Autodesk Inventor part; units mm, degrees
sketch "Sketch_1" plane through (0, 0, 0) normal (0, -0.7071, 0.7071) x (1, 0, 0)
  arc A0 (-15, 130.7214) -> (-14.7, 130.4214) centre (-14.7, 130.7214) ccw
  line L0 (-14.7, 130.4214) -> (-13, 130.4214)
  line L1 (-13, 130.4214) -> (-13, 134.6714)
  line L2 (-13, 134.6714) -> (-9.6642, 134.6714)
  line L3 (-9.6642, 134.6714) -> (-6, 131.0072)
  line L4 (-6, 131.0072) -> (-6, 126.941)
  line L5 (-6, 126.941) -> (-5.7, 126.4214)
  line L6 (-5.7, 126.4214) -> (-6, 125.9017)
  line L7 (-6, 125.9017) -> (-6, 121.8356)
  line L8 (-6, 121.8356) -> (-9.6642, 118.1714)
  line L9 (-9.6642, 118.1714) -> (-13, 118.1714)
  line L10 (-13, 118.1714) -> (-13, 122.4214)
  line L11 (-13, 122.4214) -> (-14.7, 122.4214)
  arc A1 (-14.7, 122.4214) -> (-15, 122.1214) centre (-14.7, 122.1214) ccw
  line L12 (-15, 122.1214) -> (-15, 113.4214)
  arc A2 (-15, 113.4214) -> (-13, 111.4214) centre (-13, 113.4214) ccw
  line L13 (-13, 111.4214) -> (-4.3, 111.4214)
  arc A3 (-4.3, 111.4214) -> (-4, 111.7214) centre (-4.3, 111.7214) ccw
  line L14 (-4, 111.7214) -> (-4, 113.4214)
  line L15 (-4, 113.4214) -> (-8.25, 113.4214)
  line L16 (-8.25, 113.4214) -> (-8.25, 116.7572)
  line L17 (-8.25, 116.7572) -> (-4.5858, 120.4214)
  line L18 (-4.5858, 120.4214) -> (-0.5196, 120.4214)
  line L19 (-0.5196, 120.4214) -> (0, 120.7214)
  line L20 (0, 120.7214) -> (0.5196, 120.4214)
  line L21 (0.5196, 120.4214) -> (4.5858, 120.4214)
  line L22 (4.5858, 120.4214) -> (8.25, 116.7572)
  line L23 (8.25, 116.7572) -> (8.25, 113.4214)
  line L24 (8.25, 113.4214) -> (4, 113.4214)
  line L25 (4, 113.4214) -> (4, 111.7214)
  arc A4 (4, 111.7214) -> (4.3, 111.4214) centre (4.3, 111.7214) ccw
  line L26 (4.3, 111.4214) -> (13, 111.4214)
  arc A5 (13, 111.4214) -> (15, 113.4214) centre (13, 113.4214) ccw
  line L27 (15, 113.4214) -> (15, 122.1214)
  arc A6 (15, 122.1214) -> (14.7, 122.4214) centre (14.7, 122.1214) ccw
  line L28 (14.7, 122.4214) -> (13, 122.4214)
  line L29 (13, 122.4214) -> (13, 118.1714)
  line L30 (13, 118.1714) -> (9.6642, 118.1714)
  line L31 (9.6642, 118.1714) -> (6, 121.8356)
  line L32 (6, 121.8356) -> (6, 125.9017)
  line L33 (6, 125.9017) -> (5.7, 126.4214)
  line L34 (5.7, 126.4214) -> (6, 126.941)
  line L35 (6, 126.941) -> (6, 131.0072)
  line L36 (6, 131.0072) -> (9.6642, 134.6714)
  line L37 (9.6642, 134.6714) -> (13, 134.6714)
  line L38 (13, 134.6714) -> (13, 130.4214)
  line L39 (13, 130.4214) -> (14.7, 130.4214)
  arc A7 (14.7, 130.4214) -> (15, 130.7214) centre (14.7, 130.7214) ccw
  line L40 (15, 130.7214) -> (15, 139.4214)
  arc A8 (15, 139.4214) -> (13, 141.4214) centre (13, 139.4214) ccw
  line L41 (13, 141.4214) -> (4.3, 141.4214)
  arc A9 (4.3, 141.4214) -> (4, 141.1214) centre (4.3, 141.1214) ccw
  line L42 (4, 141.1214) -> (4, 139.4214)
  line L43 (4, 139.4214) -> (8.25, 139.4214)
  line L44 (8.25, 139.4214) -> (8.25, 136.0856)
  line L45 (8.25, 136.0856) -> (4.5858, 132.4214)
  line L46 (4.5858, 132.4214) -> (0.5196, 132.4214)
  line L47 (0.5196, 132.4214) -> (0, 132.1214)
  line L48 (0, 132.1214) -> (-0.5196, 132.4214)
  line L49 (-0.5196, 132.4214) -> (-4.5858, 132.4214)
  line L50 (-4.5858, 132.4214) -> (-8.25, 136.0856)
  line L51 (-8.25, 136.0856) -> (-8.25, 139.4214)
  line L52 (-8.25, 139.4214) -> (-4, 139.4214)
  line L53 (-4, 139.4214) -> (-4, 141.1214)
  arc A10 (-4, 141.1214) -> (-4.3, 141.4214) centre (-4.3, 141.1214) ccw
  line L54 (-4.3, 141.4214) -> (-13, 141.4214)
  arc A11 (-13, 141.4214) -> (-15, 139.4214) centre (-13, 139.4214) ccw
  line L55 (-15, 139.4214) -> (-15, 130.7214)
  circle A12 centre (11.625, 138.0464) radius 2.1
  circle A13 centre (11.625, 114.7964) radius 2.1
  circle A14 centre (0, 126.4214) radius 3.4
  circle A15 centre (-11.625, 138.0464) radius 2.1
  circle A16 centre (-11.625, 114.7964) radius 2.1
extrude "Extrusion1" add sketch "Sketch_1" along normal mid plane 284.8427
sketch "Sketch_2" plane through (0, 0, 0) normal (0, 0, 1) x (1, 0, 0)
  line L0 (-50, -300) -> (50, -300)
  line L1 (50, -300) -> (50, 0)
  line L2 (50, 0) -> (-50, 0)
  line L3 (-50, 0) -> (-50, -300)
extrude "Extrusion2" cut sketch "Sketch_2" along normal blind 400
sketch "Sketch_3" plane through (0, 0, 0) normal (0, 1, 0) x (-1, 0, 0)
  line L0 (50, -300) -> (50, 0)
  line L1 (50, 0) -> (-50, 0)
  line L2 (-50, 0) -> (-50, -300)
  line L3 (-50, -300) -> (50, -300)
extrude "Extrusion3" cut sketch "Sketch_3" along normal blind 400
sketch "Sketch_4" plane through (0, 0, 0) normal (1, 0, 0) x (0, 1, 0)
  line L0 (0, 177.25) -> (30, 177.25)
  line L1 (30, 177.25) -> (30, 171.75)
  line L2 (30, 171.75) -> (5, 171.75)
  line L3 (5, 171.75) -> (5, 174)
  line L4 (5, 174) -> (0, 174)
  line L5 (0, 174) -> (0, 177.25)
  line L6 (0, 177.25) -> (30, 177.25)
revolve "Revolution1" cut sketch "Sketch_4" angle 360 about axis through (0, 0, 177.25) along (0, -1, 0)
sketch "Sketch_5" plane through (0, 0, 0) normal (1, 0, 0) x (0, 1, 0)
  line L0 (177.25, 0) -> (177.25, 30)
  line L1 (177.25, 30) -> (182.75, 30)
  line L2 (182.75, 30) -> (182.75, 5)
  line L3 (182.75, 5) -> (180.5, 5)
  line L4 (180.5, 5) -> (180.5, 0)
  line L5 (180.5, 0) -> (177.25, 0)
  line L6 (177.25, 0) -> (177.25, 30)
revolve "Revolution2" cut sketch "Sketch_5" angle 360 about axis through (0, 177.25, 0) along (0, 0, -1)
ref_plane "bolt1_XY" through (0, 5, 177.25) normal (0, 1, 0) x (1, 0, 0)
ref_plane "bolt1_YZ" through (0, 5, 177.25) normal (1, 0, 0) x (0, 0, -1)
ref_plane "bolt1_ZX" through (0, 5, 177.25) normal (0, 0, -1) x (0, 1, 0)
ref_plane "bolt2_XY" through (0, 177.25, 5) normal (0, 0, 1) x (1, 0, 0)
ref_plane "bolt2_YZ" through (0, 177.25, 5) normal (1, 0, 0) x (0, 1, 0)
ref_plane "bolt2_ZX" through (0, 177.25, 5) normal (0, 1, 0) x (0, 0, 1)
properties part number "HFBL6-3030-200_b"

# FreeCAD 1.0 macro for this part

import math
import FreeCAD as App
import Part
import Sketcher
from FreeCAD import Vector
Q = App.Units.Quantity


def add_polygon(sketch, points):
    """Adds a closed chain of lines whose ends are joined by coincident constraints."""
    first, n = sketch.GeometryCount, len(points)
    for a, b in zip(points, points[1:] + points[:1]):
        sketch.addGeometry(Part.LineSegment(App.Vector(*a, 0), App.Vector(*b, 0)), False)
    for i in range(n):
        sketch.addConstraint(Sketcher.Constraint("Coincident", first + i, 2, first + (i + 1) % n, 1))

doc = App.newDocument("Part")
body = doc.addObject("PartDesign::Body", "Body")

# Sketch on an angled plane
sketch1 = body.newObject("Sketcher::SketchObject", "Sketch")
sketch1.Placement = App.Placement(Vector(0, 0, 0), App.Rotation(Vector(1, 0, 0), Vector(0, 0.707106781, 0.707106781), Vector(0, -0.707106781, 0.707106781), "ZXY"))
sketch1.addGeometry([
    Part.LineSegment(Vector(-15, 139.42, 0), Vector(-15, 130.72, 0)),  # 0
    Part.ArcOfCircle(Part.Circle(Vector(-14.7, 130.72, 0), Vector(0, 0, 1), 0.3), math.radians(180), math.radians(270)),  # 1
    Part.LineSegment(Vector(-14.7, 130.42, 0), Vector(-13, 130.42, 0)),  # 2
    Part.LineSegment(Vector(-13, 130.42, 0), Vector(-13, 134.67, 0)),  # 3
    Part.LineSegment(Vector(-13, 134.67, 0), Vector(-9.66, 134.67, 0)),  # 4
    Part.LineSegment(Vector(-9.66, 134.67, 0), Vector(-6, 131.01, 0)),  # 5
    Part.LineSegment(Vector(-6, 131.01, 0), Vector(-6, 126.94, 0)),  # 6
    Part.LineSegment(Vector(-6, 126.94, 0), Vector(-5.7, 126.42, 0)),  # 7
    Part.LineSegment(Vector(-5.7, 126.42, 0), Vector(-6, 125.9, 0)),  # 8
    Part.LineSegment(Vector(-6, 125.9, 0), Vector(-6, 121.84, 0)),  # 9
    Part.LineSegment(Vector(-6, 121.84, 0), Vector(-9.66, 118.17, 0)),  # 10
    Part.LineSegment(Vector(-9.66, 118.17, 0), Vector(-13, 118.17, 0)),  # 11
    Part.LineSegment(Vector(-13, 118.17, 0), Vector(-13, 122.42, 0)),  # 12
    Part.LineSegment(Vector(-13, 122.42, 0), Vector(-14.7, 122.42, 0)),  # 13
    Part.ArcOfCircle(Part.Circle(Vector(-14.7, 122.12, 0), Vector(0, 0, 1), 0.3), math.radians(90), math.radians(180)),  # 14
    Part.LineSegment(Vector(-15, 122.12, 0), Vector(-15, 113.42, 0)),  # 15
    Part.ArcOfCircle(Part.Circle(Vector(-13, 113.42, 0), Vector(0, 0, 1), 2), math.radians(180), math.radians(270)),  # 16
    Part.LineSegment(Vector(-13, 111.42, 0), Vector(-4.3, 111.42, 0)),  # 17
    Part.ArcOfCircle(Part.Circle(Vector(-4.3, 111.72, 0), Vector(0, 0, 1), 0.3), math.radians(-90), math.radians(0)),  # 18
    Part.LineSegment(Vector(-4, 111.72, 0), Vector(-4, 113.42, 0)),  # 19
    Part.LineSegment(Vector(-4, 113.42, 0), Vector(-8.25, 113.42, 0)),  # 20
    Part.LineSegment(Vector(-8.25, 113.42, 0), Vector(-8.25, 116.76, 0)),  # 21
    Part.LineSegment(Vector(-8.25, 116.76, 0), Vector(-4.59, 120.42, 0)),  # 22
    Part.LineSegment(Vector(-4.59, 120.42, 0), Vector(-0.52, 120.42, 0)),  # 23
    Part.LineSegment(Vector(-0.52, 120.42, 0), Vector(0, 120.72, 0)),  # 24
    Part.LineSegment(Vector(0, 120.72, 0), Vector(0.52, 120.42, 0)),  # 25
    Part.LineSegment(Vector(0.52, 120.42, 0), Vector(4.59, 120.42, 0)),  # 26
    Part.LineSegment(Vector(4.59, 120.42, 0), Vector(8.25, 116.76, 0)),  # 27
    Part.LineSegment(Vector(8.25, 116.76, 0), Vector(8.25, 113.42, 0)),  # 28
    Part.LineSegment(Vector(8.25, 113.42, 0), Vector(4, 113.42, 0)),  # 29
    Part.LineSegment(Vector(4, 113.42, 0), Vector(4, 111.72, 0)),  # 30
    Part.ArcOfCircle(Part.Circle(Vector(4.3, 111.72, 0), Vector(0, 0, 1), 0.3), math.radians(180), math.radians(270)),  # 31
    Part.LineSegment(Vector(4.3, 111.42, 0), Vector(13, 111.42, 0)),  # 32
    Part.ArcOfCircle(Part.Circle(Vector(13, 113.42, 0), Vector(0, 0, 1), 2), math.radians(-90), math.radians(0)),  # 33
    Part.LineSegment(Vector(15, 113.42, 0), Vector(15, 122.12, 0)),  # 34
    Part.ArcOfCircle(Part.Circle(Vector(14.7, 122.12, 0), Vector(0, 0, 1), 0.3), math.radians(0), math.radians(90)),  # 35
    Part.LineSegment(Vector(14.7, 122.42, 0), Vector(13, 122.42, 0)),  # 36
    Part.LineSegment(Vector(13, 122.42, 0), Vector(13, 118.17, 0)),  # 37
    Part.LineSegment(Vector(13, 118.17, 0), Vector(9.66, 118.17, 0)),  # 38
    Part.LineSegment(Vector(9.66, 118.17, 0), Vector(6, 121.84, 0)),  # 39
    Part.LineSegment(Vector(6, 121.84, 0), Vector(6, 125.9, 0)),  # 40
    Part.LineSegment(Vector(6, 125.9, 0), Vector(5.7, 126.42, 0)),  # 41
    Part.LineSegment(Vector(5.7, 126.42, 0), Vector(6, 126.94, 0)),  # 42
    Part.LineSegment(Vector(6, 126.94, 0), Vector(6, 131.01, 0)),  # 43
    Part.LineSegment(Vector(6, 131.01, 0), Vector(9.66, 134.67, 0)),  # 44
    Part.LineSegment(Vector(9.66, 134.67, 0), Vector(13, 134.67, 0)),  # 45
    Part.LineSegment(Vector(13, 134.67, 0), Vector(13, 130.42, 0)),  # 46
    Part.LineSegment(Vector(13, 130.42, 0), Vector(14.7, 130.42, 0)),  # 47
    Part.ArcOfCircle(Part.Circle(Vector(14.7, 130.72, 0), Vector(0, 0, 1), 0.3), math.radians(-90), math.radians(0)),  # 48
    Part.LineSegment(Vector(15, 130.72, 0), Vector(15, 139.42, 0)),  # 49
    Part.ArcOfCircle(Part.Circle(Vector(13, 139.42, 0), Vector(0, 0, 1), 2), math.radians(0), math.radians(90)),  # 50
    Part.LineSegment(Vector(13, 141.42, 0), Vector(4.3, 141.42, 0)),  # 51
    Part.ArcOfCircle(Part.Circle(Vector(4.3, 141.12, 0), Vector(0, 0, 1), 0.3), math.radians(90), math.radians(180)),  # 52
    Part.LineSegment(Vector(4, 141.12, 0), Vector(4, 139.42, 0)),  # 53
    Part.LineSegment(Vector(4, 139.42, 0), Vector(8.25, 139.42, 0)),  # 54
    Part.LineSegment(Vector(8.25, 139.42, 0), Vector(8.25, 136.09, 0)),  # 55
    Part.LineSegment(Vector(8.25, 136.09, 0), Vector(4.59, 132.42, 0)),  # 56
    Part.LineSegment(Vector(4.59, 132.42, 0), Vector(0.52, 132.42, 0)),  # 57
    Part.LineSegment(Vector(0.52, 132.42, 0), Vector(0, 132.12, 0)),  # 58
    Part.LineSegment(Vector(0, 132.12, 0), Vector(-0.52, 132.42, 0)),  # 59
    Part.LineSegment(Vector(-0.52, 132.42, 0), Vector(-4.59, 132.42, 0)),  # 60
    Part.LineSegment(Vector(-4.59, 132.42, 0), Vector(-8.25, 136.09, 0)),  # 61
    Part.LineSegment(Vector(-8.25, 136.09, 0), Vector(-8.25, 139.42, 0)),  # 62
    Part.LineSegment(Vector(-8.25, 139.42, 0), Vector(-4, 139.42, 0)),  # 63
    Part.LineSegment(Vector(-4, 139.42, 0), Vector(-4, 141.12, 0)),  # 64
    Part.ArcOfCircle(Part.Circle(Vector(-4.3, 141.12, 0), Vector(0, 0, 1), 0.3), math.radians(0), math.radians(90)),  # 65
    Part.LineSegment(Vector(-4.3, 141.42, 0), Vector(-13, 141.42, 0)),  # 66
    Part.ArcOfCircle(Part.Circle(Vector(-13, 139.42, 0), Vector(0, 0, 1), 2), math.radians(90), math.radians(180)),  # 67
    Part.Circle(Vector(-11.62, 114.8, 0), Vector(0, 0, 1), 2.1),  # 68
    Part.Circle(Vector(11.62, 114.8, 0), Vector(0, 0, 1), 2.1),  # 69
    Part.Circle(Vector(-11.62, 138.05, 0), Vector(0, 0, 1), 2.1),  # 70
    Part.Circle(Vector(0, 126.42, 0), Vector(0, 0, 1), 3.4),  # 71
    Part.Circle(Vector(11.62, 138.05, 0), Vector(0, 0, 1), 2.1),  # 72
], False)
sketch1.addConstraint([
    Sketcher.Constraint("Tangent", 0, 2, 1, 1),
    Sketcher.Constraint("Tangent", 1, 2, 2, 1),
    Sketcher.Constraint("Coincident", 2, 2, 3, 1),
    Sketcher.Constraint("Coincident", 3, 2, 4, 1),
    Sketcher.Constraint("Coincident", 4, 2, 5, 1),
    Sketcher.Constraint("Coincident", 5, 2, 6, 1),
    Sketcher.Constraint("Coincident", 6, 2, 7, 1),
    Sketcher.Constraint("Coincident", 7, 2, 8, 1),
    Sketcher.Constraint("Coincident", 8, 2, 9, 1),
    Sketcher.Constraint("Coincident", 9, 2, 10, 1),
    Sketcher.Constraint("Coincident", 10, 2, 11, 1),
    Sketcher.Constraint("Coincident", 11, 2, 12, 1),
    Sketcher.Constraint("Coincident", 12, 2, 13, 1),
    Sketcher.Constraint("Tangent", 13, 2, 14, 1),
    Sketcher.Constraint("Tangent", 14, 2, 15, 1),
    Sketcher.Constraint("Tangent", 15, 2, 16, 1),
    Sketcher.Constraint("Tangent", 16, 2, 17, 1),
    Sketcher.Constraint("Tangent", 17, 2, 18, 1),
    Sketcher.Constraint("Tangent", 18, 2, 19, 1),
    Sketcher.Constraint("Coincident", 19, 2, 20, 1),
    Sketcher.Constraint("Coincident", 20, 2, 21, 1),
    Sketcher.Constraint("Coincident", 21, 2, 22, 1),
    Sketcher.Constraint("Coincident", 22, 2, 23, 1),
    Sketcher.Constraint("Coincident", 23, 2, 24, 1),
    Sketcher.Constraint("Coincident", 24, 2, 25, 1),
    Sketcher.Constraint("Coincident", 25, 2, 26, 1),
    Sketcher.Constraint("Coincident", 26, 2, 27, 1),
    Sketcher.Constraint("Coincident", 27, 2, 28, 1),
    Sketcher.Constraint("Coincident", 28, 2, 29, 1),
    Sketcher.Constraint("Coincident", 29, 2, 30, 1),
    Sketcher.Constraint("Tangent", 30, 2, 31, 1),
    Sketcher.Constraint("Tangent", 31, 2, 32, 1),
    Sketcher.Constraint("Tangent", 32, 2, 33, 1),
    Sketcher.Constraint("Tangent", 33, 2, 34, 1),
    Sketcher.Constraint("Tangent", 34, 2, 35, 1),
    Sketcher.Constraint("Tangent", 35, 2, 36, 1),
    Sketcher.Constraint("Coincident", 36, 2, 37, 1),
    Sketcher.Constraint("Coincident", 37, 2, 38, 1),
    Sketcher.Constraint("Coincident", 38, 2, 39, 1),
    Sketcher.Constraint("Coincident", 39, 2, 40, 1),
    Sketcher.Constraint("Coincident", 40, 2, 41, 1),
    Sketcher.Constraint("Coincident", 41, 2, 42, 1),
    Sketcher.Constraint("Coincident", 42, 2, 43, 1),
    Sketcher.Constraint("Coincident", 43, 2, 44, 1),
    Sketcher.Constraint("Coincident", 44, 2, 45, 1),
    Sketcher.Constraint("Coincident", 45, 2, 46, 1),
    Sketcher.Constraint("Coincident", 46, 2, 47, 1),
    Sketcher.Constraint("Tangent", 47, 2, 48, 1),
    Sketcher.Constraint("Tangent", 48, 2, 49, 1),
    Sketcher.Constraint("Tangent", 49, 2, 50, 1),
    Sketcher.Constraint("Tangent", 50, 2, 51, 1),
    Sketcher.Constraint("Tangent", 51, 2, 52, 1),
    Sketcher.Constraint("Tangent", 52, 2, 53, 1),
    Sketcher.Constraint("Coincident", 53, 2, 54, 1),
    Sketcher.Constraint("Coincident", 54, 2, 55, 1),
    Sketcher.Constraint("Coincident", 55, 2, 56, 1),
    Sketcher.Constraint("Coincident", 56, 2, 57, 1),
    Sketcher.Constraint("Coincident", 57, 2, 58, 1),
    Sketcher.Constraint("Coincident", 58, 2, 59, 1),
    Sketcher.Constraint("Coincident", 59, 2, 60, 1),
    Sketcher.Constraint("Coincident", 60, 2, 61, 1),
    Sketcher.Constraint("Coincident", 61, 2, 62, 1),
    Sketcher.Constraint("Coincident", 62, 2, 63, 1),
    Sketcher.Constraint("Coincident", 63, 2, 64, 1),
    Sketcher.Constraint("Tangent", 64, 2, 65, 1),
    Sketcher.Constraint("Tangent", 65, 2, 66, 1),
    Sketcher.Constraint("Tangent", 66, 2, 67, 1),
    Sketcher.Constraint("Tangent", 67, 2, 0, 1),
    Sketcher.Constraint("Vertical", 0),
    Sketcher.Constraint("Horizontal", 2),
    Sketcher.Constraint("Vertical", 3),
    Sketcher.Constraint("Horizontal", 4),
    Sketcher.Constraint("Vertical", 6),
    Sketcher.Constraint("Vertical", 9),
    Sketcher.Constraint("Horizontal", 11),
    Sketcher.Constraint("Vertical", 12),
    Sketcher.Constraint("Horizontal", 13),
    Sketcher.Constraint("Vertical", 15),
    Sketcher.Constraint("Horizontal", 17),
    Sketcher.Constraint("Vertical", 19),
    Sketcher.Constraint("Horizontal", 20),
    Sketcher.Constraint("Vertical", 21),
    Sketcher.Constraint("Horizontal", 23),
    Sketcher.Constraint("Horizontal", 26),
    Sketcher.Constraint("Vertical", 28),
    Sketcher.Constraint("Horizontal", 29),
    Sketcher.Constraint("Vertical", 30),
    Sketcher.Constraint("Horizontal", 32),
    Sketcher.Constraint("Vertical", 34),
    Sketcher.Constraint("Horizontal", 36),
    Sketcher.Constraint("Vertical", 37),
    Sketcher.Constraint("Horizontal", 38),
    Sketcher.Constraint("Vertical", 40),
    Sketcher.Constraint("Vertical", 43),
    Sketcher.Constraint("Horizontal", 45),
    Sketcher.Constraint("Vertical", 46),
    Sketcher.Constraint("Horizontal", 47),
    Sketcher.Constraint("Vertical", 49),
    Sketcher.Constraint("Horizontal", 51),
    Sketcher.Constraint("Vertical", 53),
    Sketcher.Constraint("Horizontal", 54),
    Sketcher.Constraint("Vertical", 55),
    Sketcher.Constraint("Horizontal", 57),
    Sketcher.Constraint("Horizontal", 60),
    Sketcher.Constraint("Vertical", 62),
    Sketcher.Constraint("Horizontal", 63),
    Sketcher.Constraint("Vertical", 64),
    Sketcher.Constraint("Horizontal", 66),
    Sketcher.Constraint("Equal", 1, 14),
    Sketcher.Constraint("Equal", 14, 18),
    Sketcher.Constraint("Equal", 18, 31),
    Sketcher.Constraint("Equal", 16, 33),
    Sketcher.Constraint("Equal", 31, 35),
    Sketcher.Constraint("Equal", 35, 48),
    Sketcher.Constraint("Equal", 33, 50),
    Sketcher.Constraint("Equal", 48, 52),
    Sketcher.Constraint("Equal", 52, 65),
    Sketcher.Constraint("Equal", 50, 67),
    Sketcher.Constraint("Equal", 68, 69),
    Sketcher.Constraint("Equal", 69, 70),
    Sketcher.Constraint("Equal", 70, 72),
    Sketcher.Constraint("Symmetric", 18, 3, 31, 3, -2),
    Sketcher.Constraint("Symmetric", 14, 3, 35, 3, -2),
    Sketcher.Constraint("Symmetric", 1, 3, 48, 3, -2),
    Sketcher.Constraint("Symmetric", 52, 3, 65, 3, -2),
    Sketcher.Constraint("Symmetric", 68, 3, 69, 3, -2),
    Sketcher.Constraint("Symmetric", 70, 3, 72, 3, -2),
    Sketcher.Constraint("Symmetric", 23, 2, 25, 2, -2),
    Sketcher.Constraint("Symmetric", 21, 2, 27, 2, -2),
    Sketcher.Constraint("Symmetric", 11, 2, 37, 2, -2),
    Sketcher.Constraint("Symmetric", 9, 2, 39, 2, -2),
    Sketcher.Constraint("Symmetric", 7, 2, 41, 2, -2),
    Sketcher.Constraint("Symmetric", 6, 2, 42, 2, -2),
    Sketcher.Constraint("Symmetric", 4, 2, 44, 2, -2),
    Sketcher.Constraint("Symmetric", 57, 2, 59, 2, -2),
    Sketcher.Constraint("Symmetric", 55, 2, 61, 2, -2),
    Sketcher.Constraint("PointOnObject", 71, 3, -2),
    Sketcher.Constraint("PointOnObject", 24, 2, -2),
    Sketcher.Constraint("PointOnObject", 58, 2, -2),
    Sketcher.Constraint("Perpendicular", 5, 10),
    Sketcher.Constraint("Parallel", 10, 22),
    Sketcher.Constraint("Perpendicular", 7, 24),
    Sketcher.Constraint("Perpendicular", 8, 25),
    Sketcher.Constraint("Perpendicular", 22, 27),
    Sketcher.Constraint("Parallel", 27, 39),
    Sketcher.Constraint("Perpendicular", 24, 41),
    Sketcher.Constraint("Perpendicular", 39, 44),
    Sketcher.Constraint("Parallel", 44, 56),
    Sketcher.Constraint("Perpendicular", 41, 58),
    Sketcher.Constraint("Perpendicular", 56, 61),
    Sketcher.Constraint("Horizontal", 71, 3, 7, 2),
    Sketcher.Constraint("Horizontal", 15, 2, 19, 2),
    Sketcher.Constraint("Horizontal", 20, 2, 28, 2),
    Sketcher.Constraint("Horizontal", 5, 2, 43, 2),
    Sketcher.Constraint("Horizontal", 49, 2, 53, 2),
    Sketcher.Constraint("Horizontal", 54, 2, 62, 2),
    Sketcher.Constraint("Vertical", 1, 3, 14, 3),
    Sketcher.Constraint("Vertical", 31, 3, 52, 3),
    Sketcher.Constraint("Vertical", 68, 3, 70, 3),
    Sketcher.Constraint("Vertical", 67, 3, 2, 2),
    Sketcher.Constraint("Vertical", 6, 2, 8, 2),
    Sketcher.Constraint("Vertical", 4, 2, 10, 2),
    Sketcher.Constraint("Vertical", 3, 2, 11, 2),
    Sketcher.Constraint("Vertical", 37, 2, 45, 2),
    Sketcher.Constraint("Vertical", 28, 2, 54, 2),
    Sketcher.Constraint("Vertical", 26, 2, 56, 2),
    Sketcher.Constraint("Vertical", 25, 2, 57, 2),
    Sketcher.Constraint("Equal", 66, 0),
    Sketcher.Constraint("Equal", 63, 3),
    Sketcher.Constraint("Equal", 60, 6),
    Sketcher.Constraint("Equal", 6, 9),
    Sketcher.Constraint("Equal", 3, 12),
    Sketcher.Constraint("Equal", 0, 15),
    Sketcher.Constraint("Equal", 45, 21),
    Sketcher.Constraint("Equal", 28, 55),
    Sketcher.Constraint("Equal", 10, 22),
    Sketcher.Constraint("Equal", 8, 24),
    Sketcher.Constraint("Radius", 16, 2.0),
    Sketcher.Constraint("Diameter", 68, 4.2),
    Sketcher.Constraint("Diameter", 71, 6.8),
    Sketcher.Constraint("Radius", 1, 0.3),
    Sketcher.Constraint("Angle", 7, Q("-59.9993 deg")),
    Sketcher.Constraint("DistanceX", 17, 1, 17, 2, 8.7),
    Sketcher.Constraint("DistanceX", 16, 3, -1, 1, 13.0),
    Sketcher.Constraint("DistanceX", 5, 2, -1, 1, 6.0),
    Sketcher.Constraint("Distance", 7, 0.6),
    Sketcher.Constraint("DistanceX", 20, 2, 20, 1, 4.25),
    Sketcher.Constraint("DistanceY", 9, 2, 9, 1, 4.066),
    Sketcher.Constraint("DistanceX", 68, 3, -1, 1, 11.625),
    Sketcher.Constraint("DistanceY", -1, 1, 6, 2, 126.941),
    Sketcher.Constraint("DistanceY", -1, 1, 68, 3, 114.7964),
    Sketcher.Constraint("DistanceY", -1, 1, 70, 3, 138.0464),
])
pad1 = body.newObject("PartDesign::Pad", "Pad")
pad1.Profile = sketch1
pad1.Length = 284.8427
pad1.Midplane = True

# Sketch on XY plane
sketch2 = body.newObject("Sketcher::SketchObject", "Sketch001")
sketch2.AttachmentSupport = (doc.getObject("XY_Plane"), [""])
sketch2.MapMode = "FlatFace"
add_polygon(sketch2, [(-50, 0), (-50, -300), (50, -300), (50, 0)])  # lines 0-3
sketch2.addConstraint([
    Sketcher.Constraint("Vertical", 0),
    Sketcher.Constraint("Horizontal", 1),
    Sketcher.Constraint("Vertical", 2),
    Sketcher.Constraint("Horizontal", 3),
    Sketcher.Constraint("Symmetric", 2, 2, 3, 2, -1, 1),
    Sketcher.Constraint("DistanceX", 1, 1, 1, 2, 100.0),
    Sketcher.Constraint("DistanceY", 0, 2, 0, 1, 300.0),
])
pocket1 = body.newObject("PartDesign::Pocket", "Pocket")
pocket1.Profile = sketch2
pocket1.Length = 400
pocket1.Reversed = True

# Sketch on XZ plane
sketch3 = body.newObject("Sketcher::SketchObject", "Sketch002")
sketch3.AttachmentSupport = (doc.getObject("XZ_Plane"), [""])
sketch3.MapMode = "FlatFace"
add_polygon(sketch3, [(50, -300), (-50, -300), (-50, 0), (50, 0)])  # lines 0-3
sketch3.addConstraint([
    Sketcher.Constraint("Horizontal", 0),
    Sketcher.Constraint("Vertical", 1),
    Sketcher.Constraint("Horizontal", 2),
    Sketcher.Constraint("Vertical", 3),
    Sketcher.Constraint("Symmetric", 1, 2, 2, 2, -1, 1),
    Sketcher.Constraint("DistanceX", 0, 2, 0, 1, 100.0),
    Sketcher.Constraint("DistanceY", 1, 1, 1, 2, 300.0),
])
pocket2 = body.newObject("PartDesign::Pocket", "Pocket001")
pocket2.Profile = sketch3
pocket2.Length = 400

# Sketch on YZ plane
sketch4 = body.newObject("Sketcher::SketchObject", "Sketch003")
sketch4.AttachmentSupport = (doc.getObject("YZ_Plane"), [""])
sketch4.MapMode = "FlatFace"
add_polygon(sketch4, [(30, 177.2), (0, 177.2), (0, 174), (5, 174), (5, 171.8), (30, 171.8)])  # lines 0-5
sketch4.addGeometry(Part.LineSegment(Vector(30, 177.2, 0), Vector(0, 177.2, 0)), True)  # axis
sketch4.addConstraint([
    Sketcher.Constraint("Horizontal", 0),
    Sketcher.Constraint("Vertical", 1),
    Sketcher.Constraint("Horizontal", 2),
    Sketcher.Constraint("Vertical", 3),
    Sketcher.Constraint("Horizontal", 4),
    Sketcher.Constraint("Vertical", 5),
    Sketcher.Constraint("Horizontal", 6),
    Sketcher.Constraint("Coincident", 6, 1, 5, 2),
    Sketcher.Constraint("PointOnObject", 0, 2, -2),
    Sketcher.Constraint("PointOnObject", 6, 2, -2),
    Sketcher.Constraint("DistanceX", 0, 2, 0, 1, 30.0),
    Sketcher.Constraint("DistanceX", 2, 1, 2, 2, 5.0),
    Sketcher.Constraint("DistanceY", 5, 1, 5, 2, 5.5),
    Sketcher.Constraint("DistanceY", -1, 1, 1, 2, 174.0),
    Sketcher.Constraint("DistanceY", 1, 2, 1, 1, 3.25),
])
groove = body.newObject("PartDesign::Groove", "Groove")
groove.Profile = sketch4
groove.ReferenceAxis = (sketch4, ["Axis0"])
groove.Angle = 360

# Sketch on YZ plane
sketch5 = body.newObject("Sketcher::SketchObject", "Sketch004")
sketch5.AttachmentSupport = (doc.getObject("YZ_Plane"), [""])
sketch5.MapMode = "FlatFace"
add_polygon(sketch5, [(177.2, 30), (177.2, 0), (180.5, 0), (180.5, 5), (182.8, 5), (182.8, 30)])  # lines 0-5
sketch5.addGeometry(Part.LineSegment(Vector(177.2, 30, 0), Vector(177.2, 0, 0)), True)  # axis
sketch5.addConstraint([
    Sketcher.Constraint("Vertical", 0),
    Sketcher.Constraint("Horizontal", 1),
    Sketcher.Constraint("Vertical", 2),
    Sketcher.Constraint("Horizontal", 3),
    Sketcher.Constraint("Vertical", 4),
    Sketcher.Constraint("Horizontal", 5),
    Sketcher.Constraint("Vertical", 6),
    Sketcher.Constraint("Coincident", 6, 1, 5, 2),
    Sketcher.Constraint("PointOnObject", 0, 2, -1),
    Sketcher.Constraint("PointOnObject", 6, 2, -1),
    Sketcher.Constraint("DistanceY", 0, 2, 0, 1, 30.0),
    Sketcher.Constraint("DistanceY", 2, 1, 2, 2, 5.0),
    Sketcher.Constraint("DistanceX", 5, 2, 5, 1, 5.5),
    Sketcher.Constraint("DistanceX", 1, 1, 1, 2, 3.25),
    Sketcher.Constraint("DistanceX", -1, 1, 1, 2, 180.5),
])
groove2 = body.newObject("PartDesign::Groove", "Groove001")
groove2.Profile = sketch5
groove2.ReferenceAxis = (sketch5, ["Axis0"])
groove2.Angle = 360

doc.recompute()
